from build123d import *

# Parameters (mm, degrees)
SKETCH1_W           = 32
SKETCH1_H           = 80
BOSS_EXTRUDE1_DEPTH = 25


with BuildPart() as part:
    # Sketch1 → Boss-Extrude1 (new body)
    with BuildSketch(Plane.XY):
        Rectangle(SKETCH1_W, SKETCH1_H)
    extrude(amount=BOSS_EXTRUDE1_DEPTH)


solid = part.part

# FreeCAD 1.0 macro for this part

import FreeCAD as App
import Part
import Sketcher

V = App.Vector
Q = App.Units.Quantity


def add_polygon(sketch, points):
    """Adds a closed chain of lines whose ends are joined by coincident constraints."""
    first, n = sketch.GeometryCount, len(points)
    for a, b in zip(points, points[1:] + points[:1]):
        sketch.addGeometry(Part.LineSegment(App.Vector(*a, 0), App.Vector(*b, 0)), False)
    for i in range(n):
        sketch.addConstraint(Sketcher.Constraint("Coincident", first + i, 2, first + (i + 1) % n, 1))

doc = App.newDocument("Part")
body = doc.addObject("PartDesign::Body", "Body")

sketch1 = body.newObject("Sketcher::SketchObject", "Sketch")
sketch1.AttachmentSupport = (doc.getObject("XY_Plane"), [""])
sketch1.MapMode = "FlatFace"
add_polygon(sketch1, [(-16, 40), (-16, -40), (16, -40), (16, 40)])
sketch1.addConstraint([
    Sketcher.Constraint("Vertical", 0),
    Sketcher.Constraint("Horizontal", 1),
    Sketcher.Constraint("Vertical", 2),
    Sketcher.Constraint("Horizontal", 3),
    Sketcher.Constraint("Symmetric", 0, 2, 2, 2, -1, 1),
    Sketcher.Constraint("DistanceX", 1, 1, 1, 2, Q("32 mm")),
    Sketcher.Constraint("DistanceY", 0, 2, 0, 1, Q("80 mm")),
])
pad1 = body.newObject("PartDesign::Pad", "Pad")
pad1.Profile = sketch1
pad1.Length = 25

doc.recompute()
